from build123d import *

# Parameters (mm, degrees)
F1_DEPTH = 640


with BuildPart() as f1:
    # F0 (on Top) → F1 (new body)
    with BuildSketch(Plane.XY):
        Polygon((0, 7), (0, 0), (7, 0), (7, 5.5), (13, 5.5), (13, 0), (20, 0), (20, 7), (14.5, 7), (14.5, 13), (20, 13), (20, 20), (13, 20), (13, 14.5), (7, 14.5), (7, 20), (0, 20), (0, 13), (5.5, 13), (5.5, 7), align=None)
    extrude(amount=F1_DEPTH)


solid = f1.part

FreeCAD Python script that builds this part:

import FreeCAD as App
import Part
import Sketcher

V = App.Vector

doc = App.newDocument("Part")
body = doc.addObject("PartDesign::Body", "Body")

# Sketch on XY plane
sketch1 = body.newObject("Sketcher::SketchObject", "Sketch")
sketch1.AttachmentSupport = (doc.getObject("XY_Plane"), [""])
sketch1.MapMode = "FlatFace"
sketch1.addGeometry(Part.LineSegment(V(0, 7, 0), V(0, 0, 0)), False)
sketch1.addGeometry(Part.LineSegment(V(0, 0, 0), V(7, 0, 0)), False)
sketch1.addGeometry(Part.LineSegment(V(7, 0, 0), V(7, 5.5, 0)), False)
sketch1.addGeometry(Part.LineSegment(V(7, 5.5, 0), V(13, 5.5, 0)), False)
sketch1.addGeometry(Part.LineSegment(V(13, 5.5, 0), V(13, 0, 0)), False)
sketch1.addGeometry(Part.LineSegment(V(13, 0, 0), V(20, 0, 0)), False)
sketch1.addGeometry(Part.LineSegment(V(20, 0, 0), V(20, 7, 0)), False)
sketch1.addGeometry(Part.LineSegment(V(20, 7, 0), V(14.5, 7, 0)), False)
sketch1.addGeometry(Part.LineSegment(V(14.5, 7, 0), V(14.5, 13, 0)), False)
sketch1.addGeometry(Part.LineSegment(V(14.5, 13, 0), V(20, 13, 0)), False)
sketch1.addGeometry(Part.LineSegment(V(20, 13, 0), V(20, 20, 0)), False)
sketch1.addGeometry(Part.LineSegment(V(20, 20, 0), V(13, 20, 0)), False)
sketch1.addGeometry(Part.LineSegment(V(13, 20, 0), V(13, 14.5, 0)), False)
sketch1.addGeometry(Part.LineSegment(V(13, 14.5, 0), V(7, 14.5, 0)), False)
sketch1.addGeometry(Part.LineSegment(V(7, 14.5, 0), V(7, 20, 0)), False)
sketch1.addGeometry(Part.LineSegment(V(7, 20, 0), V(0, 20, 0)), False)
sketch1.addGeometry(Part.LineSegment(V(0, 20, 0), V(0, 13, 0)), False)
sketch1.addGeometry(Part.LineSegment(V(0, 13, 0), V(5.5, 13, 0)), False)
sketch1.addGeometry(Part.LineSegment(V(5.5, 13, 0), V(5.5, 7, 0)), False)
sketch1.addGeometry(Part.LineSegment(V(5.5, 7, 0), V(0, 7, 0)), False)
sketch1.addConstraint(Sketcher.Constraint("Coincident", 0, 2, 1, 1))
sketch1.addConstraint(Sketcher.Constraint("Coincident", 1, 2, 2, 1))
sketch1.addConstraint(Sketcher.Constraint("Coincident", 2, 2, 3, 1))
sketch1.addConstraint(Sketcher.Constraint("Coincident", 3, 2, 4, 1))
sketch1.addConstraint(Sketcher.Constraint("Coincident", 4, 2, 5, 1))
sketch1.addConstraint(Sketcher.Constraint("Coincident", 5, 2, 6, 1))
sketch1.addConstraint(Sketcher.Constraint("Coincident", 6, 2, 7, 1))
sketch1.addConstraint(Sketcher.Constraint("Coincident", 7, 2, 8, 1))
sketch1.addConstraint(Sketcher.Constraint("Coincident", 8, 2, 9, 1))
sketch1.addConstraint(Sketcher.Constraint("Coincident", 9, 2, 10, 1))
sketch1.addConstraint(Sketcher.Constraint("Coincident", 10, 2, 11, 1))
sketch1.addConstraint(Sketcher.Constraint("Coincident", 11, 2, 12, 1))
sketch1.addConstraint(Sketcher.Constraint("Coincident", 12, 2, 13, 1))
sketch1.addConstraint(Sketcher.Constraint("Coincident", 13, 2, 14, 1))
sketch1.addConstraint(Sketcher.Constraint("Coincident", 14, 2, 15, 1))
sketch1.addConstraint(Sketcher.Constraint("Coincident", 15, 2, 16, 1))
sketch1.addConstraint(Sketcher.Constraint("Coincident", 16, 2, 17, 1))
sketch1.addConstraint(Sketcher.Constraint("Coincident", 17, 2, 18, 1))
sketch1.addConstraint(Sketcher.Constraint("Coincident", 18, 2, 19, 1))
sketch1.addConstraint(Sketcher.Constraint("Coincident", 19, 2, 0, 1))
sketch1.addConstraint(Sketcher.Constraint("Vertical", 0))
sketch1.addConstraint(Sketcher.Constraint("Horizontal", 1))
sketch1.addConstraint(Sketcher.Constraint("Vertical", 2))
sketch1.addConstraint(Sketcher.Constraint("Horizontal", 3))
sketch1.addConstraint(Sketcher.Constraint("Vertical", 4))
sketch1.addConstraint(Sketcher.Constraint("Horizontal", 5))
sketch1.addConstraint(Sketcher.Constraint("Vertical", 6))
sketch1.addConstraint(Sketcher.Constraint("Horizontal", 7))
sketch1.addConstraint(Sketcher.Constraint("Vertical", 8))
sketch1.addConstraint(Sketcher.Constraint("Horizontal", 9))
sketch1.addConstraint(Sketcher.Constraint("Vertical", 10))
sketch1.addConstraint(Sketcher.Constraint("Horizontal", 11))
sketch1.addConstraint(Sketcher.Constraint("Vertical", 12))
sketch1.addConstraint(Sketcher.Constraint("Horizontal", 13))
sketch1.addConstraint(Sketcher.Constraint("Vertical", 14))
sketch1.addConstraint(Sketcher.Constraint("Horizontal", 15))
sketch1.addConstraint(Sketcher.Constraint("Vertical", 16))
sketch1.addConstraint(Sketcher.Constraint("Horizontal", 17))
sketch1.addConstraint(Sketcher.Constraint("Vertical", 18))
sketch1.addConstraint(Sketcher.Constraint("Horizontal", 19))
sketch1.addConstraint(Sketcher.Constraint("Coincident", 0, 2, -1, 1))
sketch1.addConstraint(Sketcher.Constraint("PointOnObject", 4, 2, -1))
sketch1.addConstraint(Sketcher.Constraint("PointOnObject", 15, 2, -2))
sketch1.addConstraint(Sketcher.Constraint("Horizontal", 11, 2, 14, 2))
sketch1.addConstraint(Sketcher.Constraint("Horizontal", 9, 2, 16, 2))
sketch1.addConstraint(Sketcher.Constraint("Horizontal", 7, 2, 18, 2))
sketch1.addConstraint(Sketcher.Constraint("Vertical", 6, 2, 9, 2))
sketch1.addConstraint(Sketcher.Constraint("Vertical", 4, 2, 11, 2))
sketch1.addConstraint(Sketcher.Constraint("Vertical", 2, 2, 13, 2))
sketch1.addConstraint(Sketcher.Constraint("Equal", 1, 5))
sketch1.addConstraint(Sketcher.Constraint("Equal", 9, 17))
sketch1.addConstraint(Sketcher.Constraint("Equal", 15, 0))
sketch1.addConstraint(Sketcher.Constraint("Equal", 19, 2))
sketch1.addConstraint(Sketcher.Constraint("Equal", 13, 8))
sketch1.addConstraint(Sketcher.Constraint("Equal", 6, 10))
sketch1.addConstraint(Sketcher.Constraint("Equal", 4, 12))
sketch1.addConstraint(Sketcher.Constraint("DistanceX", 1, 1, 1, 2, 7.0))
sketch1.addConstraint(Sketcher.Constraint("DistanceX", 3, 1, 3, 2, 6.0))
sketch1.addConstraint(Sketcher.Constraint("DistanceX", 7, 2, 7, 1, 5.5))
pad1 = body.newObject("PartDesign::Pad", "Pad")
pad1.Profile = sketch1
pad1.Length = 640

doc.recompute()
